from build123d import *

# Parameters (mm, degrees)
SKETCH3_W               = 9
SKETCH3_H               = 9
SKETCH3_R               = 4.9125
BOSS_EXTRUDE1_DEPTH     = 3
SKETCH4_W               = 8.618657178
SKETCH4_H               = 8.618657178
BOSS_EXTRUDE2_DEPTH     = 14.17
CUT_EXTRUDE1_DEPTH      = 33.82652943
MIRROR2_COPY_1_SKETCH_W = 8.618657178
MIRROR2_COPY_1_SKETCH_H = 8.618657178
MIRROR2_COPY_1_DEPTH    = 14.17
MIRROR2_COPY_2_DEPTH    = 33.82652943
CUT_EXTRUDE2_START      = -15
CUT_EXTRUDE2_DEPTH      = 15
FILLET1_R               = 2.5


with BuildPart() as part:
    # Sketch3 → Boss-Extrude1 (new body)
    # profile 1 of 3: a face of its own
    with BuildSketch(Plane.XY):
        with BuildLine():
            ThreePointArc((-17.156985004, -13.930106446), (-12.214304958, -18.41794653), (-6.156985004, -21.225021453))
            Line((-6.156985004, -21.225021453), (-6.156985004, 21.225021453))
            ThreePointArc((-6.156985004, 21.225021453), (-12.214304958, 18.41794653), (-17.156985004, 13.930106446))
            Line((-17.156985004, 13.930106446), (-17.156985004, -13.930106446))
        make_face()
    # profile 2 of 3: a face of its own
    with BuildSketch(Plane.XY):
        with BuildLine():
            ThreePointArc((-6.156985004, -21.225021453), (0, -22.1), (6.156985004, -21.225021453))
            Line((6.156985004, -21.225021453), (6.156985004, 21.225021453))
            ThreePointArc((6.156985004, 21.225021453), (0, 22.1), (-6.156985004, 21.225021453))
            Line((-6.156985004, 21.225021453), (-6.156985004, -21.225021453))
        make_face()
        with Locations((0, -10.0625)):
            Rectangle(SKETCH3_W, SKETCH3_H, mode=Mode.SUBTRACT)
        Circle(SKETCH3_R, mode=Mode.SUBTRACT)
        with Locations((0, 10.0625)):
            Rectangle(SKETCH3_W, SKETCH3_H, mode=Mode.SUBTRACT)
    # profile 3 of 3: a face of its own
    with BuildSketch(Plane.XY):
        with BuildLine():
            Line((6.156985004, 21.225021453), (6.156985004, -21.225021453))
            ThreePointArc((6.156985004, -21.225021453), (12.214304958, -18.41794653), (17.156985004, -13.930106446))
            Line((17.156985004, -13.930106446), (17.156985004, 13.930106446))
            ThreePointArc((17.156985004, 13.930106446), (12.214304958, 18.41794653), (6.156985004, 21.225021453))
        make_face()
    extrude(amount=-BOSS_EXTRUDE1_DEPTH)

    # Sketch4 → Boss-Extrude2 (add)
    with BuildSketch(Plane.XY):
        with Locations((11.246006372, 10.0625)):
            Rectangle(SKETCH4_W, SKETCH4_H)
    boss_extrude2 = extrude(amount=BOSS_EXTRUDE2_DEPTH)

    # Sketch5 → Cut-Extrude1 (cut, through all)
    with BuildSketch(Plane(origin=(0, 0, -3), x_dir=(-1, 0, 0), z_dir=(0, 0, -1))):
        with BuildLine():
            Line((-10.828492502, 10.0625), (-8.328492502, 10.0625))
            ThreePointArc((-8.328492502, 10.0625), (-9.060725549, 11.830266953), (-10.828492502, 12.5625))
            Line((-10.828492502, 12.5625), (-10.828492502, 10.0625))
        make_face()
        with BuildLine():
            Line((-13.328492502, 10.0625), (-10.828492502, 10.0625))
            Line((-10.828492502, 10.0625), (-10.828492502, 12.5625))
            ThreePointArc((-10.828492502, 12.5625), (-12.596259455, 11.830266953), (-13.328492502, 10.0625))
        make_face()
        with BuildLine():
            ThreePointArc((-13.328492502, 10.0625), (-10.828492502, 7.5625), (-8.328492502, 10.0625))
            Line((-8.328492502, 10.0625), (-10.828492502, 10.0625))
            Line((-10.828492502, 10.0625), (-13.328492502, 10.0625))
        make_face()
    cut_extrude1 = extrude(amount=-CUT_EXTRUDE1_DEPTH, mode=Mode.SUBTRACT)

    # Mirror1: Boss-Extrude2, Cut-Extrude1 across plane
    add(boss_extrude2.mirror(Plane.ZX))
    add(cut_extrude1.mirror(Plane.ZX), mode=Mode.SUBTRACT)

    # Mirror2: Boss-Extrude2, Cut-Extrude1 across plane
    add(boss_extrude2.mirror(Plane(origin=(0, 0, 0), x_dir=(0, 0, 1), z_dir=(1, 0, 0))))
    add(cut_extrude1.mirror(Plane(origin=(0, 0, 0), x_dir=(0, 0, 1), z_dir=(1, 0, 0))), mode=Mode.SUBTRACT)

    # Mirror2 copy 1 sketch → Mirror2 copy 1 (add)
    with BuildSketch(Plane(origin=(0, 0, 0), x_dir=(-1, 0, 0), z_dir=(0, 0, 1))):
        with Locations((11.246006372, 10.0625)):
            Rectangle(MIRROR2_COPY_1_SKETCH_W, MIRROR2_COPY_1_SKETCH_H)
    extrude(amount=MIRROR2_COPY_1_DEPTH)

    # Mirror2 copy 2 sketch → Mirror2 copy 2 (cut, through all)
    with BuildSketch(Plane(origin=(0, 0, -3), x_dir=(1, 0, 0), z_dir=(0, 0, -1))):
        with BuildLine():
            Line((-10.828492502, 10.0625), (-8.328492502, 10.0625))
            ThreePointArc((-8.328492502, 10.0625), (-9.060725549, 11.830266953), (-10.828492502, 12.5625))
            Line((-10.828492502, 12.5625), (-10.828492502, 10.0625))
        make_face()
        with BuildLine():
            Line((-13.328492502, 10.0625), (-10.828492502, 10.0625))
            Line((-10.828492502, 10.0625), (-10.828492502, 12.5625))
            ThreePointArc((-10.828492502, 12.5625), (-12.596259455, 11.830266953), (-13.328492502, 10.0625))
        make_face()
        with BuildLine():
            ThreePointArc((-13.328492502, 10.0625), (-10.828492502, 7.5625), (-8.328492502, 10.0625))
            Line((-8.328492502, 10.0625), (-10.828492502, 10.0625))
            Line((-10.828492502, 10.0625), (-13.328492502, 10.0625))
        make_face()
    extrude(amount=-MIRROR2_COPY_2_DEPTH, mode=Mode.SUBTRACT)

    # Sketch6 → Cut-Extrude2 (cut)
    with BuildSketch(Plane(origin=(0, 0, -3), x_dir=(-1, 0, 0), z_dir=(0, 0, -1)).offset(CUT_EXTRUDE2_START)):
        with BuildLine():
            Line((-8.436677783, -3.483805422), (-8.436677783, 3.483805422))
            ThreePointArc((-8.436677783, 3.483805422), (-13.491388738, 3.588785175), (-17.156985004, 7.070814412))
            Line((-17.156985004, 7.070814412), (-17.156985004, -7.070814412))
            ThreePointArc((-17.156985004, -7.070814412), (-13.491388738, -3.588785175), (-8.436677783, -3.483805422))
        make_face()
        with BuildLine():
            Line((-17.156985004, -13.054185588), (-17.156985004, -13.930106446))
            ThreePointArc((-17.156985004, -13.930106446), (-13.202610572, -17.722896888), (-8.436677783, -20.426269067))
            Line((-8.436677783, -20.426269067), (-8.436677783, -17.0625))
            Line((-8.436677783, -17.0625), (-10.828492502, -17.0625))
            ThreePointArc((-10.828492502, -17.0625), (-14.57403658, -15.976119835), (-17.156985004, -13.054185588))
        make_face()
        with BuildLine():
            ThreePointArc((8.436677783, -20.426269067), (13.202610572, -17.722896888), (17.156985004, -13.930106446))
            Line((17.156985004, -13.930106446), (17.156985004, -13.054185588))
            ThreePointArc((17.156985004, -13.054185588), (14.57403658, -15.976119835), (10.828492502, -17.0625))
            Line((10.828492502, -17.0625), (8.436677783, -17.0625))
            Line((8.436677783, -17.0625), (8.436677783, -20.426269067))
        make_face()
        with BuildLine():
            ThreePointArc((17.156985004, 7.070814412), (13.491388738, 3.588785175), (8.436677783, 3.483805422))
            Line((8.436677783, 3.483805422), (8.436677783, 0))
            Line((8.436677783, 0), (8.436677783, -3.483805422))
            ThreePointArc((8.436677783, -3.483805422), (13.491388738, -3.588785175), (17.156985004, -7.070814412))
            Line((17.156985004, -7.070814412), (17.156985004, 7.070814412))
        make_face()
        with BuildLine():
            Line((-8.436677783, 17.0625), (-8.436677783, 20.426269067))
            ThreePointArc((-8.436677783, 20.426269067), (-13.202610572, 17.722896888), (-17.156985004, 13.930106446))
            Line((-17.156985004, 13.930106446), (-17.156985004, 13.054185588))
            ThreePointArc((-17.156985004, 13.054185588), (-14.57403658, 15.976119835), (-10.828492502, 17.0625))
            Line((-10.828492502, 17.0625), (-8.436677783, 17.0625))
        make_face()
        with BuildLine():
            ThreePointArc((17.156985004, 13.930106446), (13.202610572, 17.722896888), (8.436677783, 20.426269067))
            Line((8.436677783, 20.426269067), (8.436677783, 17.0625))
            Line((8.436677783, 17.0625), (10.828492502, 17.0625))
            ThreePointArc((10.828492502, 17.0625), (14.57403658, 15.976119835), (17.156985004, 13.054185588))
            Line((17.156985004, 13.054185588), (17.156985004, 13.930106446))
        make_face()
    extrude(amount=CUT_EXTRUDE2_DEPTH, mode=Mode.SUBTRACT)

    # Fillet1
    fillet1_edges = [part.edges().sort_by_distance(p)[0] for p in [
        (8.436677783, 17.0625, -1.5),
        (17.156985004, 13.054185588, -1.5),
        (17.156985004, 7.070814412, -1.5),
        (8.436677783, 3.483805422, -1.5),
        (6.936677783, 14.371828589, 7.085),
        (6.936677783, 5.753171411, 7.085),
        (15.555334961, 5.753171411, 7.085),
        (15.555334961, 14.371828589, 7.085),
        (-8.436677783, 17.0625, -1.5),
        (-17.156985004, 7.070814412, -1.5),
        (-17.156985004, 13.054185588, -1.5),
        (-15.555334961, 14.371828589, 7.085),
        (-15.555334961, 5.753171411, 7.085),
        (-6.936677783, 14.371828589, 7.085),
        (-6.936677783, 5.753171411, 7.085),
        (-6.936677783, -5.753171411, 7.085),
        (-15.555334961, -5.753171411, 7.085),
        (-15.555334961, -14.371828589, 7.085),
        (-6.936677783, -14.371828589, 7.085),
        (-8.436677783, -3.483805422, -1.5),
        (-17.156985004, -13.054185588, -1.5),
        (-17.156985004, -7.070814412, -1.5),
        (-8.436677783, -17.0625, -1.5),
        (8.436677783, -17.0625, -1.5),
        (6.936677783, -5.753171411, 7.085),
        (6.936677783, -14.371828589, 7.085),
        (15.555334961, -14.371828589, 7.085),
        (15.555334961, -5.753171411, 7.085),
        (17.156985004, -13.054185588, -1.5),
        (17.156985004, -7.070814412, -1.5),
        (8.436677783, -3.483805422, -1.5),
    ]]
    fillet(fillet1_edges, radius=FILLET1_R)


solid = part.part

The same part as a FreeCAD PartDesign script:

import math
import FreeCAD as App
import Part
import Sketcher

V = App.Vector


def edges_at(feature, points):
    """Names of the edges that pass closest to the given points."""
    edges = feature.Shape.Edges
    near = lambda p: min(range(len(edges)), key=lambda i: edges[i].distToShape(Part.Vertex(*p))[0])
    return sorted({f"Edge{near(p) + 1}" for p in points})

doc = App.newDocument("Part")
params = doc.addObject("Spreadsheet::Sheet", "Params")
for row, (alias, value) in enumerate([
    ("sketch1_radius", "22.1 mm"),
    ("sketch1_width", "9 mm"),
    ("pad1_length", "3 mm"),
    ("pad2_length", "14.17 mm"),
    ("sketch3_radius", "2.5 mm"),
    ("pad3_length", "14.17 mm"),
    ("sketch5_radius", "2.5 mm"),
    ("sketch6_radius", "7 mm"),
    ("sketch6_radius2", "22.1 mm"),
    ("pocket3_length", "15 mm"),
    ("fillet_radius", "2.5 mm"),
], start=1):
    params.set(f"A{row}", alias)
    params.set(f"B{row}", "=" + value)
    params.setAlias(f"B{row}", alias)

body = doc.addObject("PartDesign::Body", "Body")

sketch1 = body.newObject("Sketcher::SketchObject", "Sketch")
sketch1.AttachmentSupport = (doc.getObject("XY_Plane"), [""])
sketch1.MapMode = "FlatFace"
sketch1.addGeometry([
    Part.ArcOfCircle(Part.Circle(V(0, 0, 0), V(0, 0, 1), 22.1), math.radians(-141), math.radians(-106)),
    Part.ArcOfCircle(Part.Circle(V(0, 0, 0), V(0, 0, 1), 22.1), math.radians(-106), math.radians(-74)),
    Part.ArcOfCircle(Part.Circle(V(0, 0, 0), V(0, 0, 1), 22.1), math.radians(-74), math.radians(-39)),
    Part.LineSegment(V(17.2, -13.9, 0), V(17.2, 13.9, 0)),
    Part.ArcOfCircle(Part.Circle(V(0, 0, 0), V(0, 0, 1), 22.1), math.radians(39), math.radians(74)),
    Part.ArcOfCircle(Part.Circle(V(0, 0, 0), V(0, 0, 1), 22.1), math.radians(74), math.radians(106)),
    Part.ArcOfCircle(Part.Circle(V(0, 0, 0), V(0, 0, 1), 22.1), math.radians(106), math.radians(141)),
    Part.LineSegment(V(-17.2, 13.9, 0), V(-17.2, -13.9, 0)),
    Part.LineSegment(V(-4.5, 5.6, 0), V(-4.5, 14.6, 0)),
    Part.LineSegment(V(-4.5, 14.6, 0), V(4.5, 14.6, 0)),
    Part.LineSegment(V(4.5, 14.6, 0), V(4.5, 5.6, 0)),
    Part.LineSegment(V(4.5, 5.6, 0), V(-4.5, 5.6, 0)),
    Part.LineSegment(V(4.5, -14.6, 0), V(-4.5, -14.6, 0)),
    Part.LineSegment(V(-4.5, -14.6, 0), V(-4.5, -5.6, 0)),
    Part.LineSegment(V(-4.5, -5.6, 0), V(4.5, -5.6, 0)),
    Part.LineSegment(V(4.5, -5.6, 0), V(4.5, -14.6, 0)),
    Part.Circle(V(0, 0, 0), V(0, 0, 1), 4.9),
], False)
sketch1.addConstraint([
    Sketcher.Constraint("Tangent", 0, 2, 1, 1),
    Sketcher.Constraint("Tangent", 1, 2, 2, 1),
    Sketcher.Constraint("Coincident", 2, 2, 3, 1),
    Sketcher.Constraint("Coincident", 3, 2, 4, 1),
    Sketcher.Constraint("Tangent", 4, 2, 5, 1),
    Sketcher.Constraint("Tangent", 5, 2, 6, 1),
    Sketcher.Constraint("Coincident", 6, 2, 7, 1),
    Sketcher.Constraint("Coincident", 7, 2, 0, 1),
    Sketcher.Constraint("Coincident", 8, 2, 9, 1),
    Sketcher.Constraint("Coincident", 9, 2, 10, 1),
    Sketcher.Constraint("Coincident", 10, 2, 11, 1),
    Sketcher.Constraint("Coincident", 11, 2, 8, 1),
    Sketcher.Constraint("Coincident", 12, 2, 13, 1),
    Sketcher.Constraint("Coincident", 13, 2, 14, 1),
    Sketcher.Constraint("Coincident", 14, 2, 15, 1),
    Sketcher.Constraint("Coincident", 15, 2, 12, 1),
    Sketcher.Constraint("Vertical", 3),
    Sketcher.Constraint("Vertical", 7),
    Sketcher.Constraint("Vertical", 8),
    Sketcher.Constraint("Horizontal", 9),
    Sketcher.Constraint("Vertical", 10),
    Sketcher.Constraint("Horizontal", 11),
    Sketcher.Constraint("Horizontal", 12),
    Sketcher.Constraint("Vertical", 13),
    Sketcher.Constraint("Horizontal", 14),
    Sketcher.Constraint("Vertical", 15),
    Sketcher.Constraint("Coincident", 0, 3, -1, 1),
    Sketcher.Constraint("Coincident", 2, 3, -1, 1),
    Sketcher.Constraint("Coincident", 4, 3, -1, 1),
    Sketcher.Constraint("Coincident", 6, 3, -1, 1),
    Sketcher.Constraint("Coincident", 16, 3, -1, 1),
    Sketcher.Constraint("Equal", 2, 4),
    Sketcher.Constraint("Symmetric", 9, 2, 12, 2, -1, 1),
    Sketcher.Constraint("Symmetric", 11, 2, 14, 2, -1, 1),
    Sketcher.Constraint("Horizontal", 0, 2, 1, 2),
    Sketcher.Constraint("Horizontal", 4, 2, 5, 2),
    Sketcher.Constraint("Horizontal", 3, 2, 6, 2),
    Sketcher.Constraint("Vertical", 1, 2, 4, 2),
    Sketcher.Constraint("Vertical", 11, 2, 12, 2),
    Sketcher.Constraint("Equal", 14, 8),
    Sketcher.Constraint("Radius", 0, 22.1),
    Sketcher.Constraint("DistanceX", 9, 1, 9, 2, 9.0),
    Sketcher.Constraint("Diameter", 16, 9.825),
    Sketcher.Constraint("DistanceX", 1, 2, 2, 2, 11.0),
    Sketcher.Constraint("DistanceY", -1, 1, 8, 2, 14.5625),
    Sketcher.Constraint("DistanceY", 3, 1, 3, 2, 27.860213),
])
sketch1.setExpression("Constraints[40]", "Params.sketch1_radius")
sketch1.setExpression("Constraints[41]", "Params.sketch1_width")
pad1 = body.newObject("PartDesign::Pad", "Pad")
pad1.Profile = sketch1
pad1.setExpression("Length", "Params.pad1_length")
pad1.Reversed = True

sketch2 = body.newObject("Sketcher::SketchObject", "Sketch001")
sketch2.AttachmentSupport = (doc.getObject("XY_Plane"), [""])
sketch2.MapMode = "FlatFace"
sketch2.addGeometry([
    Part.LineSegment(V(7, 14, 0), V(7, 6, 0)),
    Part.LineSegment(V(7, 6, 0), V(16, 6, 0)),
    Part.LineSegment(V(16, 6, 0), V(16, 14, 0)),
    Part.LineSegment(V(16, 14, 0), V(7, 14, 0)),
], False)
sketch2.addConstraint([
    Sketcher.Constraint("Coincident", 0, 2, 1, 1),
    Sketcher.Constraint("Coincident", 1, 2, 2, 1),
    Sketcher.Constraint("Coincident", 2, 2, 3, 1),
    Sketcher.Constraint("Coincident", 3, 2, 0, 1),
    Sketcher.Constraint("Vertical", 0),
    Sketcher.Constraint("Horizontal", 1),
    Sketcher.Constraint("Vertical", 2),
    Sketcher.Constraint("Horizontal", 3),
    Sketcher.Constraint("Equal", 3, 0),
    Sketcher.Constraint("DistanceX", 1, 1, 1, 2, 8.618657),
    Sketcher.Constraint("DistanceY", -1, 1, 0, 2, 5.753171),
    Sketcher.Constraint("DistanceX", -1, 1, 0, 2, 6.936678),
])
pad2 = body.newObject("PartDesign::Pad", "Pad001")
pad2.Profile = sketch2
pad2.setExpression("Length", "Params.pad2_length")

sketch3 = body.newObject("Sketcher::SketchObject", "Sketch002")
sketch3.AttachmentSupport = (doc.getObject("XY_Plane"), [""])
sketch3.MapMode = "FlatFace"
sketch3.AttachmentOffset = App.Placement(V(0, 0, -3), App.Rotation())
sketch3.addGeometry([
    Part.ArcOfCircle(Part.Circle(V(10.8, 10.1, 0), V(0, 0, 1), 2.5), math.radians(180), math.radians(360)),
    Part.ArcOfCircle(Part.Circle(V(10.8, 10.1, 0), V(0, 0, 1), 2.5), math.radians(90), math.radians(180)),
    Part.ArcOfCircle(Part.Circle(V(10.8, 10.1, 0), V(0, 0, 1), 2.5), math.radians(0), math.radians(90)),
], False)
sketch3.addConstraint([
    Sketcher.Constraint("Tangent", 0, 1, 1, 2),
    Sketcher.Constraint("Tangent", 1, 1, 2, 2),
    Sketcher.Constraint("Tangent", 2, 1, 0, 2),
    Sketcher.Constraint("Horizontal", 2, 3, 0, 1),
    Sketcher.Constraint("Horizontal", 0, 1, 2, 1),
    Sketcher.Constraint("Vertical", 2, 3, 1, 1),
    Sketcher.Constraint("Radius", 0, 2.5),
    Sketcher.Constraint("DistanceY", -1, 1, 0, 3, 10.0625),
    Sketcher.Constraint("DistanceX", -1, 1, 0, 3, 10.828493),
])
sketch3.setExpression("Constraints[6]", "Params.sketch3_radius")
pocket1 = body.newObject("PartDesign::Pocket", "Pocket")
pocket1.Profile = sketch3
pocket1.Type = "ThroughAll"
pocket1.Reversed = True
doc.recompute()

mirrored = body.newObject("PartDesign::Mirrored", "Mirrored")
mirrored.Originals = [pad2, pocket1]
mirrored.MirrorPlane = (doc.getObject("XZ_Plane"), [""])
body.Tip = mirrored
doc.recompute()

mirrored2 = body.newObject("PartDesign::Mirrored", "Mirrored001")
mirrored2.Originals = [pad2, pocket1]
mirrored2.MirrorPlane = (doc.getObject("YZ_Plane"), [""])
body.Tip = mirrored2

sketch4 = body.newObject("Sketcher::SketchObject", "Sketch003")
sketch4.AttachmentSupport = (doc.getObject("XY_Plane"), [""])
sketch4.MapMode = "FlatFace"
sketch4.addGeometry([
    Part.LineSegment(V(-7, -14, 0), V(-7, -6, 0)),
    Part.LineSegment(V(-7, -6, 0), V(-16, -6, 0)),
    Part.LineSegment(V(-16, -6, 0), V(-16, -14, 0)),
    Part.LineSegment(V(-16, -14, 0), V(-7, -14, 0)),
], False)
sketch4.addConstraint([
    Sketcher.Constraint("Coincident", 0, 2, 1, 1),
    Sketcher.Constraint("Coincident", 1, 2, 2, 1),
    Sketcher.Constraint("Coincident", 2, 2, 3, 1),
    Sketcher.Constraint("Coincident", 3, 2, 0, 1),
    Sketcher.Constraint("Vertical", 0),
    Sketcher.Constraint("Horizontal", 1),
    Sketcher.Constraint("Vertical", 2),
    Sketcher.Constraint("Horizontal", 3),
    Sketcher.Constraint("Equal", 3, 0),
    Sketcher.Constraint("DistanceX", 1, 2, 1, 1, 8.618657),
    Sketcher.Constraint("DistanceY", 0, 2, -1, 1, 5.753171),
    Sketcher.Constraint("DistanceX", 0, 2, -1, 1, 6.936678),
])
pad3 = body.newObject("PartDesign::Pad", "Pad002")
pad3.Profile = sketch4
pad3.setExpression("Length", "Params.pad3_length")

sketch5 = body.newObject("Sketcher::SketchObject", "Sketch004")
sketch5.AttachmentSupport = (doc.getObject("XY_Plane"), [""])
sketch5.MapMode = "FlatFace"
sketch5.AttachmentOffset = App.Placement(V(0, 0, -3), App.Rotation())
sketch5.addGeometry([
    Part.ArcOfCircle(Part.Circle(V(-10.8, -10.1, 0), V(0, 0, 1), 2.5), math.radians(0), math.radians(180)),
    Part.ArcOfCircle(Part.Circle(V(-10.8, -10.1, 0), V(0, 0, 1), 2.5), math.radians(-90), math.radians(0)),
    Part.ArcOfCircle(Part.Circle(V(-10.8, -10.1, 0), V(0, 0, 1), 2.5), math.radians(180), math.radians(270)),
], False)
sketch5.addConstraint([
    Sketcher.Constraint("Tangent", 0, 1, 1, 2),
    Sketcher.Constraint("Tangent", 1, 1, 2, 2),
    Sketcher.Constraint("Tangent", 2, 1, 0, 2),
    Sketcher.Constraint("Horizontal", 2, 3, 0, 1),
    Sketcher.Constraint("Horizontal", 0, 1, 2, 1),
    Sketcher.Constraint("Vertical", 2, 3, 1, 1),
    Sketcher.Constraint("Radius", 0, 2.5),
    Sketcher.Constraint("DistanceY", 0, 3, -1, 1, 10.0625),
    Sketcher.Constraint("DistanceX", 0, 3, -1, 1, 10.828493),
])
sketch5.setExpression("Constraints[6]", "Params.sketch5_radius")
pocket2 = body.newObject("PartDesign::Pocket", "Pocket001")
pocket2.Profile = sketch5
pocket2.Type = "ThroughAll"
pocket2.Reversed = True

sketch6 = body.newObject("Sketcher::SketchObject", "Sketch005")
sketch6.AttachmentSupport = (doc.getObject("XY_Plane"), [""])
sketch6.MapMode = "FlatFace"
sketch6.AttachmentOffset = App.Placement(V(0, 0, 12), App.Rotation())
sketch6.addGeometry([
    Part.LineSegment(V(8.4, -3.5, 0), V(8.4, 3.5, 0)),
    Part.ArcOfCircle(Part.Circle(V(10.8, 10.1, 0), V(0, 0, 1), 7), math.radians(-110), math.radians(-25)),
    Part.LineSegment(V(17.2, 7.1, 0), V(17.2, -7.1, 0)),
    Part.ArcOfCircle(Part.Circle(V(10.8, -10.1, 0), V(0, 0, 1), 7), math.radians(25), math.radians(110)),
    Part.LineSegment(V(17.2, -13.1, 0), V(17.2, -13.9, 0)),
    Part.ArcOfCircle(Part.Circle(V(0, 0, 0), V(0, 0, 1), 22.1), math.radians(-68), math.radians(-39)),
    Part.LineSegment(V(8.4, -20.4, 0), V(8.4, -17.1, 0)),
    Part.LineSegment(V(8.4, -17.1, 0), V(10.8, -17.1, 0)),
    Part.ArcOfCircle(Part.Circle(V(10.8, -10.1, 0), V(0, 0, 1), 7), math.radians(-90), math.radians(-25)),
    Part.ArcOfCircle(Part.Circle(V(0, 0, 0), V(0, 0, 1), 22.1), math.radians(-141), math.radians(-112)),
    Part.LineSegment(V(-17.2, -13.9, 0), V(-17.2, -13.1, 0)),
    Part.ArcOfCircle(Part.Circle(V(-10.8, -10.1, 0), V(0, 0, 1), 7), math.radians(-155), math.radians(-90)),
    Part.LineSegment(V(-10.8, -17.1, 0), V(-8.4, -17.1, 0)),
    Part.LineSegment(V(-8.4, -17.1, 0), V(-8.4, -20.4, 0)),
    Part.ArcOfCircle(Part.Circle(V(-10.8, 10.1, 0), V(0, 0, 1), 7), math.radians(-155), math.radians(-70)),
    Part.LineSegment(V(-8.4, 3.5, 0), V(-8.4, -3.5, 0)),
    Part.ArcOfCircle(Part.Circle(V(-10.8, -10.1, 0), V(0, 0, 1), 7), math.radians(70), math.radians(155)),
    Part.LineSegment(V(-17.2, -7.1, 0), V(-17.2, 7.1, 0)),
    Part.LineSegment(V(8.4, 17.1, 0), V(8.4, 20.4, 0)),
    Part.ArcOfCircle(Part.Circle(V(0, 0, 0), V(0, 0, 1), 22.1), math.radians(39), math.radians(68)),
    Part.LineSegment(V(17.2, 13.9, 0), V(17.2, 13.1, 0)),
    Part.ArcOfCircle(Part.Circle(V(10.8, 10.1, 0), V(0, 0, 1), 7), math.radians(25), math.radians(90)),
    Part.LineSegment(V(10.8, 17.1, 0), V(8.4, 17.1, 0)),
    Part.ArcOfCircle(Part.Circle(V(0, 0, 0), V(0, 0, 1), 22.1), math.radians(112), math.radians(141)),
    Part.LineSegment(V(-8.4, 20.4, 0), V(-8.4, 17.1, 0)),
    Part.LineSegment(V(-8.4, 17.1, 0), V(-10.8, 17.1, 0)),
    Part.ArcOfCircle(Part.Circle(V(-10.8, 10.1, 0), V(0, 0, 1), 7), math.radians(90), math.radians(155)),
    Part.LineSegment(V(-17.2, 13.1, 0), V(-17.2, 13.9, 0)),
], False)
sketch6.addConstraint([
    Sketcher.Constraint("Coincident", 0, 2, 1, 1),
    Sketcher.Constraint("Coincident", 1, 2, 2, 1),
    Sketcher.Constraint("Coincident", 2, 2, 3, 1),
    Sketcher.Constraint("Coincident", 3, 2, 0, 1),
    Sketcher.Constraint("Coincident", 4, 2, 5, 2),
    Sketcher.Constraint("Coincident", 5, 1, 6, 1),
    Sketcher.Constraint("Coincident", 6, 2, 7, 1),
    Sketcher.Constraint("Tangent", 7, 2, 8, 1),
    Sketcher.Constraint("Coincident", 8, 2, 4, 1),
    Sketcher.Constraint("Coincident", 9, 1, 10, 1),
    Sketcher.Constraint("Coincident", 10, 2, 11, 1),
    Sketcher.Constraint("Tangent", 11, 2, 12, 1),
    Sketcher.Constraint("Coincident", 12, 2, 13, 1),
    Sketcher.Constraint("Coincident", 13, 2, 9, 2),
    Sketcher.Constraint("Coincident", 14, 2, 15, 1),
    Sketcher.Constraint("Coincident", 15, 2, 16, 1),
    Sketcher.Constraint("Coincident", 16, 2, 17, 1),
    Sketcher.Constraint("Coincident", 17, 2, 14, 1),
    Sketcher.Constraint("Coincident", 18, 2, 19, 2),
    Sketcher.Constraint("Coincident", 19, 1, 20, 1),
    Sketcher.Constraint("Coincident", 20, 2, 21, 1),
    Sketcher.Constraint("Tangent", 21, 2, 22, 1),
    Sketcher.Constraint("Coincident", 22, 2, 18, 1),
    Sketcher.Constraint("Coincident", 23, 1, 24, 1),
    Sketcher.Constraint("Coincident", 24, 2, 25, 1),
    Sketcher.Constraint("Tangent", 25, 2, 26, 1),
    Sketcher.Constraint("Coincident", 26, 2, 27, 1),
    Sketcher.Constraint("Coincident", 27, 2, 23, 2),
    Sketcher.Constraint("Vertical", 0),
    Sketcher.Constraint("Vertical", 2),
    Sketcher.Constraint("Vertical", 4),
    Sketcher.Constraint("Vertical", 6),
    Sketcher.Constraint("Horizontal", 7),
    Sketcher.Constraint("Vertical", 10),
    Sketcher.Constraint("Horizontal", 12),
    Sketcher.Constraint("Vertical", 13),
    Sketcher.Constraint("Vertical", 15),
    Sketcher.Constraint("Vertical", 17),
    Sketcher.Constraint("Vertical", 18),
    Sketcher.Constraint("Vertical", 20),
    Sketcher.Constraint("Horizontal", 22),
    Sketcher.Constraint("Vertical", 24),
    Sketcher.Constraint("Horizontal", 25),
    Sketcher.Constraint("Vertical", 27),
    Sketcher.Constraint("Coincident", 5, 3, -1, 1),
    Sketcher.Constraint("Coincident", 9, 3, -1, 1),
    Sketcher.Constraint("Coincident", 19, 3, -1, 1),
    Sketcher.Constraint("Coincident", 23, 3, -1, 1),
    Sketcher.Constraint("Coincident", 8, 3, 3, 3),
    Sketcher.Constraint("Coincident", 16, 3, 11, 3),
    Sketcher.Constraint("Coincident", 21, 3, 1, 3),
    Sketcher.Constraint("Coincident", 26, 3, 14, 3),
    Sketcher.Constraint("Equal", 1, 3),
    Sketcher.Constraint("Equal", 3, 8),
    Sketcher.Constraint("Equal", 5, 9),
    Sketcher.Constraint("Equal", 8, 11),
    Sketcher.Constraint("Equal", 11, 14),
    Sketcher.Constraint("Equal", 14, 16),
    Sketcher.Constraint("Equal", 9, 19),
    Sketcher.Constraint("Equal", 16, 21),
    Sketcher.Constraint("Equal", 19, 23),
    Sketcher.Constraint("Equal", 21, 26),
    Sketcher.Constraint("Symmetric", 1, 3, 11, 3, -1, 1),
    Sketcher.Constraint("Symmetric", 3, 3, 14, 3, -1, 1),
    Sketcher.Constraint("Symmetric", 3, 3, 11, 3, -2),
    Sketcher.Constraint("Horizontal", 4, 2, 9, 1),
    Sketcher.Constraint("Horizontal", 5, 1, 13, 2),
    Sketcher.Constraint("Horizontal", 0, 2, 14, 2),
    Sketcher.Constraint("Horizontal", 2, 2, 16, 2),
    Sketcher.Constraint("Horizontal", 18, 2, 23, 1),
    Sketcher.Constraint("Horizontal", 20, 2, 26, 2),
    Sketcher.Constraint("Vertical", 2, 2, 4, 2),
    Sketcher.Constraint("Vertical", 3, 2, 5, 1),
    Sketcher.Constraint("Vertical", 6, 2, 18, 2),
    Sketcher.Constraint("Vertical", 8, 2, 19, 1),
    Sketcher.Constraint("Radius", 1, 7.0),
    Sketcher.Constraint("Radius", 5, 22.1),
    Sketcher.Constraint("DistanceY", 3, 3, 1, 3, 20.125),
    Sketcher.Constraint("DistanceY", 0, 1, 0, 2, 6.967611),
    Sketcher.Constraint("DistanceY", 2, 2, 2, 1, 14.141629),
    Sketcher.Constraint("DistanceY", 4, 2, 4, 1, 0.875921),
])
sketch6.setExpression("Constraints[75]", "Params.sketch6_radius")
sketch6.setExpression("Constraints[76]", "Params.sketch6_radius2")
pocket3 = body.newObject("PartDesign::Pocket", "Pocket002")
pocket3.Profile = sketch6
pocket3.setExpression("Length", "Params.pocket3_length")
doc.recompute()

fillet = body.newObject("PartDesign::Fillet", "Fillet")
fillet.Base = (pocket3, edges_at(pocket3, [
    (8.437, 17.062, -1.5),
    (17.157, 13.054, -1.5),
    (17.157, 7.071, -1.5),
    (8.437, 3.484, -1.5),
    (6.937, 14.372, 7.085),
    (6.937, 5.753, 7.085),
    (15.555, 5.753, 7.085),
    (15.555, 14.372, 7.085),
    (-8.437, 17.062, -1.5),
    (-17.157, 7.071, -1.5),
    (-17.157, 13.054, -1.5),
    (-15.555, 14.372, 7.085),
    (-15.555, 5.753, 7.085),
    (-6.937, 14.372, 7.085),
    (-6.937, 5.753, 7.085),
    (-6.937, -5.753, 7.085),
    (-15.555, -5.753, 7.085),
    (-15.555, -14.372, 7.085),
    (-6.937, -14.372, 7.085),
    (-8.437, -3.484, -1.5),
    (-17.157, -13.054, -1.5),
    (-17.157, -7.071, -1.5),
    (-8.437, -17.062, -1.5),
    (8.437, -17.062, -1.5),
    (6.937, -5.753, 7.085),
    (6.937, -14.372, 7.085),
    (15.555, -14.372, 7.085),
    (15.555, -5.753, 7.085),
    (17.157, -13.054, -1.5),
    (17.157, -7.071, -1.5),
    (8.437, -3.484, -1.5),
]))
fillet.setExpression("Radius", "Params.fillet_radius")

doc.recompute()
